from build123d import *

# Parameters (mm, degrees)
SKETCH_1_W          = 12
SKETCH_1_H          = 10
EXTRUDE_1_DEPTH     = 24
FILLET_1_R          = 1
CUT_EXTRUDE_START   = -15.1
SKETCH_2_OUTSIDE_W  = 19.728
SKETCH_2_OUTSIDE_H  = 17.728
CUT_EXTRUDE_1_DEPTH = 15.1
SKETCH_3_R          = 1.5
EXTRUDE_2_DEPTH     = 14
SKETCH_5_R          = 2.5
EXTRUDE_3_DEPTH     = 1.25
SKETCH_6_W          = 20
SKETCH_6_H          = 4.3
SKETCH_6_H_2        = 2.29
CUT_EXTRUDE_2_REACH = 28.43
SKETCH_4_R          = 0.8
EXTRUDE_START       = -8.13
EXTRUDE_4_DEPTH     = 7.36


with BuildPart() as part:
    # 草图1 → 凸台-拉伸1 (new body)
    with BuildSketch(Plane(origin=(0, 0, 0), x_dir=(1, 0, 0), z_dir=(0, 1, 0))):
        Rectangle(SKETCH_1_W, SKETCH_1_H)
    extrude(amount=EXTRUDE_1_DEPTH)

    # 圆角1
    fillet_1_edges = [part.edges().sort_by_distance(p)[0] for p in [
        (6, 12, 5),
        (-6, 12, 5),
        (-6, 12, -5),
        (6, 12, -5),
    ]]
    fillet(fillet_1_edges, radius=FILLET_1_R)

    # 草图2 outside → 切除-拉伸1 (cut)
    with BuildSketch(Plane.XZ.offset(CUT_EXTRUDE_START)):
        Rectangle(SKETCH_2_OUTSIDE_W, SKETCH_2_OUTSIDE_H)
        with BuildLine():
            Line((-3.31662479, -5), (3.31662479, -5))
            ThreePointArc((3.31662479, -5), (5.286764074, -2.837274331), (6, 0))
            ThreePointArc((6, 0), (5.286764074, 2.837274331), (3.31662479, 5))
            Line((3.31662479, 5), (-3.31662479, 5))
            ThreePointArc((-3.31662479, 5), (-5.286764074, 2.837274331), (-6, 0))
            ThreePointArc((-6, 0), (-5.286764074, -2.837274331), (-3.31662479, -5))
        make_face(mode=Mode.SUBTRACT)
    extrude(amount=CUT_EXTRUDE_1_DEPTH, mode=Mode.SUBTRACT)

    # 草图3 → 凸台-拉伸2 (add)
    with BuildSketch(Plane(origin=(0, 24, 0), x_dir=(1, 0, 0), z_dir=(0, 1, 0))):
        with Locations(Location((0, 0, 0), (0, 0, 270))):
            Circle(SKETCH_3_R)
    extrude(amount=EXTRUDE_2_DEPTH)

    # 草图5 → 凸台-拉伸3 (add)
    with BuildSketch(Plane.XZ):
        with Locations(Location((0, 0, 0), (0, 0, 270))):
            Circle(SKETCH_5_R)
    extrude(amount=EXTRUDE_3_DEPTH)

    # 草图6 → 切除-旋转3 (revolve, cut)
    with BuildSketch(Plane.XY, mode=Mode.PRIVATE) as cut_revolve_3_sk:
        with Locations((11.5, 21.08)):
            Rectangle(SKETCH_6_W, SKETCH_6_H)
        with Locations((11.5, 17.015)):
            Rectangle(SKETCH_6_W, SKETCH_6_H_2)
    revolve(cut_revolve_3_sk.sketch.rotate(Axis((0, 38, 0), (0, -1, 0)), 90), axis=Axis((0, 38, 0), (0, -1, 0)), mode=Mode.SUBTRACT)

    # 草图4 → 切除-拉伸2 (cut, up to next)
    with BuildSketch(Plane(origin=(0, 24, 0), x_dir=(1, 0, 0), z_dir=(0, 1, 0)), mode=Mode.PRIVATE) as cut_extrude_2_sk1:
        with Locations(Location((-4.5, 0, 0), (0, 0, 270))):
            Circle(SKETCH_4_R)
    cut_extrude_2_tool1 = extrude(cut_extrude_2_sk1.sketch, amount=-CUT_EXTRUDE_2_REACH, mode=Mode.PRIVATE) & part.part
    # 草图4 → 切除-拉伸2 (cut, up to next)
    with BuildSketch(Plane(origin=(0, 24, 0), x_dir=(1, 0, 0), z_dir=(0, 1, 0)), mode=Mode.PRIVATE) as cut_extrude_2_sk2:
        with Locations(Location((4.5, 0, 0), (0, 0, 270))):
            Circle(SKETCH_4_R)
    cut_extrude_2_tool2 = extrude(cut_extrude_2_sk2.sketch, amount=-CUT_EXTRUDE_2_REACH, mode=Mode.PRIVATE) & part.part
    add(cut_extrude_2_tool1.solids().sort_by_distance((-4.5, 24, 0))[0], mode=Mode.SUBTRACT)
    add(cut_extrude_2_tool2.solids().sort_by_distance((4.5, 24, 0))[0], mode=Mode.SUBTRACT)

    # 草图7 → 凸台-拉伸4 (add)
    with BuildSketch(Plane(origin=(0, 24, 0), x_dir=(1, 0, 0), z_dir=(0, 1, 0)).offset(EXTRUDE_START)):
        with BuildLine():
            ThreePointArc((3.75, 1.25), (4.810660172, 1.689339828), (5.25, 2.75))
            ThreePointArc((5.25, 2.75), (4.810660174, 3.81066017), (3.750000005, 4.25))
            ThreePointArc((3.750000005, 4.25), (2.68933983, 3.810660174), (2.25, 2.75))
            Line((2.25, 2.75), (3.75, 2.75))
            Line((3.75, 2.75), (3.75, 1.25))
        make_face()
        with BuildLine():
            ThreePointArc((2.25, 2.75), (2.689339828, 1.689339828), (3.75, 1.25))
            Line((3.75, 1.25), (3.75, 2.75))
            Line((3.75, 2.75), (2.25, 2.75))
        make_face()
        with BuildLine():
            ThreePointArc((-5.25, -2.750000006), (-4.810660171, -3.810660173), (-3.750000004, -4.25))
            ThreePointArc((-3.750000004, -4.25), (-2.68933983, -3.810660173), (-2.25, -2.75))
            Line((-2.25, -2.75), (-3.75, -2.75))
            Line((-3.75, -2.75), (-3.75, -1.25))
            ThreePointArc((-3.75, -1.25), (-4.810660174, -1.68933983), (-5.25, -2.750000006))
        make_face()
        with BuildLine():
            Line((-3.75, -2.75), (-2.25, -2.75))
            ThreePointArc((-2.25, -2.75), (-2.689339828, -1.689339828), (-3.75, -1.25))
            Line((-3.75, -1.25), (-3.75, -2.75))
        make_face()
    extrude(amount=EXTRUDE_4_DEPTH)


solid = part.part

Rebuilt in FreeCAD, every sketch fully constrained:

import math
import FreeCAD as App
import Part
import Sketcher


def edges_at(feature, points):
    """Names of the edges that pass closest to the given points."""
    edges = feature.Shape.Edges
    near = lambda p: min(range(len(edges)), key=lambda i: edges[i].distToShape(Part.Vertex(*p))[0])
    return sorted({f"Edge{near(p) + 1}" for p in points})

doc = App.newDocument("Part")
body = doc.addObject("PartDesign::Body", "Body")

# Sketch on XZ plane
sketch1 = body.newObject("Sketcher::SketchObject", "Sketch")
sketch1.AttachmentSupport = (doc.getObject("XZ_Plane"), [""])
sketch1.MapMode = "FlatFace"
sketch1.addGeometry([
    Part.LineSegment(App.Vector(-6, -5, 0), App.Vector(-6, 5, 0)),
    Part.LineSegment(App.Vector(-6, 5, 0), App.Vector(6, 5, 0)),
    Part.LineSegment(App.Vector(6, 5, 0), App.Vector(6, -5, 0)),
    Part.LineSegment(App.Vector(6, -5, 0), App.Vector(-6, -5, 0)),
], False)
sketch1.addConstraint([
    Sketcher.Constraint("Coincident", 0, 2, 1, 1),
    Sketcher.Constraint("Coincident", 1, 2, 2, 1),
    Sketcher.Constraint("Coincident", 2, 2, 3, 1),
    Sketcher.Constraint("Coincident", 3, 2, 0, 1),
    Sketcher.Constraint("Vertical", 0),
    Sketcher.Constraint("Horizontal", 1),
    Sketcher.Constraint("Vertical", 2),
    Sketcher.Constraint("Horizontal", 3),
    Sketcher.Constraint("Symmetric", 0, 2, 2, 2, -1, 1),
    Sketcher.Constraint("DistanceX", 1, 1, 1, 2, 12.0),
    Sketcher.Constraint("DistanceY", 0, 1, 0, 2, 10.0),
])
pad1 = body.newObject("PartDesign::Pad", "Pad")
pad1.Profile = sketch1
pad1.Length = 24
pad1.Reversed = True
doc.recompute()

fillet = body.newObject("PartDesign::Fillet", "Fillet")
fillet.Base = (pad1, edges_at(pad1, [
    (6, 12, 5),
    (-6, 12, 5),
    (-6, 12, -5),
    (6, 12, -5),
]))
fillet.Radius = 1

# Sketch on XZ plane
sketch2 = body.newObject("Sketcher::SketchObject", "Sketch001")
sketch2.AttachmentSupport = (doc.getObject("XZ_Plane"), [""])
sketch2.MapMode = "FlatFace"
sketch2.AttachmentOffset = App.Placement(App.Vector(0, 0, -15.1), App.Rotation())
sketch2.addGeometry([
    Part.LineSegment(App.Vector(-10, 9, 0), App.Vector(-10, -9, 0)),  # 0
    Part.LineSegment(App.Vector(-10, -9, 0), App.Vector(10, -9, 0)),  # 1
    Part.LineSegment(App.Vector(10, -9, 0), App.Vector(10, 9, 0)),  # 2
    Part.LineSegment(App.Vector(10, 9, 0), App.Vector(-10, 9, 0)),  # 3
    Part.LineSegment(App.Vector(3, -5, 0), App.Vector(-3, -5, 0)),  # 4
    Part.ArcOfCircle(Part.Circle(App.Vector(0, 0, 0), App.Vector(0, 0, 1), 6), math.radians(180), math.radians(236)),  # 5
    Part.ArcOfCircle(Part.Circle(App.Vector(0, 0, 0), App.Vector(0, 0, 1), 6), math.radians(124), math.radians(180)),  # 6
    Part.LineSegment(App.Vector(-3, 5, 0), App.Vector(3, 5, 0)),  # 7
    Part.ArcOfCircle(Part.Circle(App.Vector(0, 0, 0), App.Vector(0, 0, 1), 6), math.radians(0), math.radians(56)),  # 8
    Part.ArcOfCircle(Part.Circle(App.Vector(0, 0, 0), App.Vector(0, 0, 1), 6), math.radians(-56), math.radians(0)),  # 9
], False)
sketch2.addConstraint([
    Sketcher.Constraint("Coincident", 0, 2, 1, 1),
    Sketcher.Constraint("Coincident", 1, 2, 2, 1),
    Sketcher.Constraint("Coincident", 2, 2, 3, 1),
    Sketcher.Constraint("Coincident", 3, 2, 0, 1),
    Sketcher.Constraint("Coincident", 4, 2, 5, 2),
    Sketcher.Constraint("Tangent", 5, 1, 6, 2),
    Sketcher.Constraint("Coincident", 6, 1, 7, 1),
    Sketcher.Constraint("Coincident", 7, 2, 8, 2),
    Sketcher.Constraint("Tangent", 8, 1, 9, 2),
    Sketcher.Constraint("Coincident", 9, 1, 4, 1),
    Sketcher.Constraint("Vertical", 0),
    Sketcher.Constraint("Horizontal", 1),
    Sketcher.Constraint("Vertical", 2),
    Sketcher.Constraint("Horizontal", 3),
    Sketcher.Constraint("Horizontal", 4),
    Sketcher.Constraint("Horizontal", 7),
    Sketcher.Constraint("Coincident", 5, 3, -1, 1),
    Sketcher.Constraint("Coincident", 8, 3, -1, 1),
    Sketcher.Constraint("Equal", 5, 6),
    Sketcher.Constraint("Equal", 6, 8),
    Sketcher.Constraint("Equal", 8, 9),
    Sketcher.Constraint("Symmetric", 0, 2, 2, 2, -1, 1),
    Sketcher.Constraint("PointOnObject", 5, 1, -1),
    Sketcher.Constraint("PointOnObject", 8, 1, -1),
    Sketcher.Constraint("Vertical", 4, 2, 6, 1),
    Sketcher.Constraint("Radius", 5, 6.0),
    Sketcher.Constraint("DistanceY", 4, 2, -1, 1, 5.0),
    Sketcher.Constraint("DistanceX", 1, 1, 1, 2, 19.728),
    Sketcher.Constraint("DistanceY", 0, 2, 0, 1, 17.728),
])
pocket1 = body.newObject("PartDesign::Pocket", "Pocket")
pocket1.Profile = sketch2
pocket1.Length = 15.1
pocket1.Reversed = True

# Sketch on XZ plane
sketch3 = body.newObject("Sketcher::SketchObject", "Sketch002")
sketch3.AttachmentSupport = (doc.getObject("XZ_Plane"), [""])
sketch3.MapMode = "FlatFace"
sketch3.AttachmentOffset = App.Placement(App.Vector(0, 0, -24), App.Rotation())
sketch3.addGeometry(Part.Circle(App.Vector(0, 0, 0), App.Vector(0, 0, 1), 1.5), False)
sketch3.addConstraint([
    Sketcher.Constraint("Coincident", 0, 3, -1, 1),
    Sketcher.Constraint("Diameter", 0, 3.0),
])
pad2 = body.newObject("PartDesign::Pad", "Pad001")
pad2.Profile = sketch3
pad2.Length = 14
pad2.Reversed = True

# Sketch on XZ plane
sketch4 = body.newObject("Sketcher::SketchObject", "Sketch003")
sketch4.AttachmentSupport = (doc.getObject("XZ_Plane"), [""])
sketch4.MapMode = "FlatFace"
sketch4.addGeometry(Part.Circle(App.Vector(0, 0, 0), App.Vector(0, 0, 1), 2.5), False)
sketch4.addConstraint([
    Sketcher.Constraint("Coincident", 0, 3, -1, 1),
    Sketcher.Constraint("Diameter", 0, 5.0),
])
pad3 = body.newObject("PartDesign::Pad", "Pad002")
pad3.Profile = sketch4
pad3.Length = 1.25

# Sketch on XY plane
sketch5 = body.newObject("Sketcher::SketchObject", "Sketch004")
sketch5.AttachmentSupport = (doc.getObject("XY_Plane"), [""])
sketch5.MapMode = "FlatFace"
sketch5.addGeometry([
    Part.LineSegment(App.Vector(1.5, 23.2, 0), App.Vector(1.5, 18.9, 0)),  # 0
    Part.LineSegment(App.Vector(1.5, 18.9, 0), App.Vector(21.5, 18.9, 0)),  # 1
    Part.LineSegment(App.Vector(21.5, 18.9, 0), App.Vector(21.5, 23.2, 0)),  # 2
    Part.LineSegment(App.Vector(21.5, 23.2, 0), App.Vector(1.5, 23.2, 0)),  # 3
    Part.LineSegment(App.Vector(1.5, 18.2, 0), App.Vector(1.5, 15.9, 0)),  # 4
    Part.LineSegment(App.Vector(1.5, 15.9, 0), App.Vector(21.5, 15.9, 0)),  # 5
    Part.LineSegment(App.Vector(21.5, 15.9, 0), App.Vector(21.5, 18.2, 0)),  # 6
    Part.LineSegment(App.Vector(21.5, 18.2, 0), App.Vector(1.5, 18.2, 0)),  # 7
], False)
sketch5.addConstraint([
    Sketcher.Constraint("Coincident", 0, 2, 1, 1),
    Sketcher.Constraint("Coincident", 1, 2, 2, 1),
    Sketcher.Constraint("Coincident", 2, 2, 3, 1),
    Sketcher.Constraint("Coincident", 3, 2, 0, 1),
    Sketcher.Constraint("Coincident", 4, 2, 5, 1),
    Sketcher.Constraint("Coincident", 5, 2, 6, 1),
    Sketcher.Constraint("Coincident", 6, 2, 7, 1),
    Sketcher.Constraint("Coincident", 7, 2, 4, 1),
    Sketcher.Constraint("Vertical", 0),
    Sketcher.Constraint("Horizontal", 1),
    Sketcher.Constraint("Vertical", 2),
    Sketcher.Constraint("Horizontal", 3),
    Sketcher.Constraint("Vertical", 4),
    Sketcher.Constraint("Horizontal", 5),
    Sketcher.Constraint("Vertical", 6),
    Sketcher.Constraint("Horizontal", 7),
    Sketcher.Constraint("Vertical", 3, 2, 4, 2),
    Sketcher.Constraint("Vertical", 2, 2, 5, 2),
    Sketcher.Constraint("DistanceX", 1, 1, 1, 2, 20.0),
    Sketcher.Constraint("DistanceY", 0, 2, 0, 1, 4.3),
    Sketcher.Constraint("DistanceY", 4, 2, 4, 1, 2.29),
    Sketcher.Constraint("DistanceX", -1, 1, 0, 2, 1.5),
    Sketcher.Constraint("DistanceY", -1, 1, 0, 2, 18.93),
    Sketcher.Constraint("DistanceY", -1, 1, 4, 2, 15.87),
])
groove = body.newObject("PartDesign::Groove", "Groove")
groove.Profile = sketch5
groove.ReferenceAxis = (sketch5, ["V_Axis"])
groove.Angle = 360

# Sketch on XZ plane
sketch6 = body.newObject("Sketcher::SketchObject", "Sketch005")
sketch6.AttachmentSupport = (doc.getObject("XZ_Plane"), [""])
sketch6.MapMode = "FlatFace"
sketch6.AttachmentOffset = App.Placement(App.Vector(0, 0, -24), App.Rotation())
sketch6.addGeometry(Part.Circle(App.Vector(-4.5, 0, 0), App.Vector(0, 0, 1), 0.8), False)
sketch6.addConstraint([
    Sketcher.Constraint("PointOnObject", 0, 3, -1),
    Sketcher.Constraint("Diameter", 0, 1.6),
    Sketcher.Constraint("DistanceX", 0, 3, -1, 1, 4.5),
])
pocket2 = body.newObject("PartDesign::Pocket", "Pocket001")
pocket2.Profile = sketch6
pocket2.Type = "UpToFirst"
pocket2.Reversed = True

# Sketch on XZ plane
sketch7 = body.newObject("Sketcher::SketchObject", "Sketch006")
sketch7.AttachmentSupport = (doc.getObject("XZ_Plane"), [""])
sketch7.MapMode = "FlatFace"
sketch7.AttachmentOffset = App.Placement(App.Vector(0, 0, -24), App.Rotation())
sketch7.addGeometry(Part.Circle(App.Vector(4.5, 0, 0), App.Vector(0, 0, 1), 0.8), False)
sketch7.addConstraint([
    Sketcher.Constraint("PointOnObject", 0, 3, -1),
    Sketcher.Constraint("Diameter", 0, 1.6),
    Sketcher.Constraint("DistanceX", -1, 1, 0, 3, 4.5),
])
pocket3 = body.newObject("PartDesign::Pocket", "Pocket002")
pocket3.Profile = sketch7
pocket3.Type = "UpToFirst"
pocket3.Reversed = True

# Sketch on XZ plane
sketch8 = body.newObject("Sketcher::SketchObject", "Sketch007")
sketch8.AttachmentSupport = (doc.getObject("XZ_Plane"), [""])
sketch8.MapMode = "FlatFace"
sketch8.AttachmentOffset = App.Placement(App.Vector(0, 0, -15.87), App.Rotation())
sketch8.addGeometry([
    Part.ArcOfCircle(Part.Circle(App.Vector(3.8, -2.8, 0), App.Vector(0, 0, 1), 1.5), math.radians(-90), math.radians(0)),  # 0
    Part.ArcOfCircle(Part.Circle(App.Vector(3.7, -2.8, 0), App.Vector(0, 0, 1), 1.5), math.radians(180), math.radians(270)),  # 1
    Part.ArcOfCircle(Part.Circle(App.Vector(3.7, -2.7, 0), App.Vector(0, 0, 1), 1.5), math.radians(90), math.radians(180)),  # 2
    Part.ArcOfCircle(Part.Circle(App.Vector(3.8, -2.7, 0), App.Vector(0, 0, 1), 1.5), math.radians(0), math.radians(90)),  # 3
    Part.ArcOfCircle(Part.Circle(App.Vector(-3.8, 2.7, 0), App.Vector(0, 0, 1), 1.5), math.radians(0), math.radians(90)),  # 4
    Part.ArcOfCircle(Part.Circle(App.Vector(-3.7, 2.7, 0), App.Vector(0, 0, 1), 1.5), math.radians(-90), math.radians(0)),  # 5
    Part.ArcOfCircle(Part.Circle(App.Vector(-3.8, 2.7, 0), App.Vector(0, 0, 1), 1.5), math.radians(180), math.radians(270)),  # 6
    Part.ArcOfCircle(Part.Circle(App.Vector(-3.8, 2.8, 0), App.Vector(0, 0, 1), 1.5), math.radians(90), math.radians(180)),  # 7
], False)
sketch8.addConstraint([
    Sketcher.Constraint("Tangent", 0, 1, 1, 2),
    Sketcher.Constraint("Tangent", 1, 1, 2, 2),
    Sketcher.Constraint("Tangent", 2, 1, 3, 2),
    Sketcher.Constraint("Tangent", 3, 1, 0, 2),
    Sketcher.Constraint("Tangent", 4, 1, 5, 2),
    Sketcher.Constraint("Tangent", 5, 1, 6, 2),
    Sketcher.Constraint("Tangent", 6, 1, 7, 2),
    Sketcher.Constraint("Tangent", 7, 1, 4, 2),
    Sketcher.Constraint("Equal", 0, 1),
    Sketcher.Constraint("Equal", 3, 4),
    Sketcher.Constraint("Equal", 4, 5),
    Sketcher.Constraint("Symmetric", 0, 3, 4, 3, -1, 1),
    Sketcher.Constraint("Horizontal", 3, 3, 1, 1),
    Sketcher.Constraint("Horizontal", 1, 1, 3, 1),
    Sketcher.Constraint("Horizontal", 7, 3, 4, 1),
    Sketcher.Constraint("Horizontal", 4, 1, 6, 1),
    Sketcher.Constraint("Vertical", 3, 3, 0, 1),
    Sketcher.Constraint("Vertical", 0, 1, 2, 1),
    Sketcher.Constraint("Vertical", 7, 3, 5, 1),
    Sketcher.Constraint("Vertical", 5, 1, 7, 1),
    Sketcher.Constraint("Radius", 0, 1.5),
    Sketcher.Constraint("DistanceY", 0, 1, 5, 3, 7.0),
    Sketcher.Constraint("DistanceX", 4, 3, 2, 3, 7.5),
])
pad4 = body.newObject("PartDesign::Pad", "Pad003")
pad4.Profile = sketch8
pad4.Length = 7.36
pad4.Reversed = True

doc.recompute()
